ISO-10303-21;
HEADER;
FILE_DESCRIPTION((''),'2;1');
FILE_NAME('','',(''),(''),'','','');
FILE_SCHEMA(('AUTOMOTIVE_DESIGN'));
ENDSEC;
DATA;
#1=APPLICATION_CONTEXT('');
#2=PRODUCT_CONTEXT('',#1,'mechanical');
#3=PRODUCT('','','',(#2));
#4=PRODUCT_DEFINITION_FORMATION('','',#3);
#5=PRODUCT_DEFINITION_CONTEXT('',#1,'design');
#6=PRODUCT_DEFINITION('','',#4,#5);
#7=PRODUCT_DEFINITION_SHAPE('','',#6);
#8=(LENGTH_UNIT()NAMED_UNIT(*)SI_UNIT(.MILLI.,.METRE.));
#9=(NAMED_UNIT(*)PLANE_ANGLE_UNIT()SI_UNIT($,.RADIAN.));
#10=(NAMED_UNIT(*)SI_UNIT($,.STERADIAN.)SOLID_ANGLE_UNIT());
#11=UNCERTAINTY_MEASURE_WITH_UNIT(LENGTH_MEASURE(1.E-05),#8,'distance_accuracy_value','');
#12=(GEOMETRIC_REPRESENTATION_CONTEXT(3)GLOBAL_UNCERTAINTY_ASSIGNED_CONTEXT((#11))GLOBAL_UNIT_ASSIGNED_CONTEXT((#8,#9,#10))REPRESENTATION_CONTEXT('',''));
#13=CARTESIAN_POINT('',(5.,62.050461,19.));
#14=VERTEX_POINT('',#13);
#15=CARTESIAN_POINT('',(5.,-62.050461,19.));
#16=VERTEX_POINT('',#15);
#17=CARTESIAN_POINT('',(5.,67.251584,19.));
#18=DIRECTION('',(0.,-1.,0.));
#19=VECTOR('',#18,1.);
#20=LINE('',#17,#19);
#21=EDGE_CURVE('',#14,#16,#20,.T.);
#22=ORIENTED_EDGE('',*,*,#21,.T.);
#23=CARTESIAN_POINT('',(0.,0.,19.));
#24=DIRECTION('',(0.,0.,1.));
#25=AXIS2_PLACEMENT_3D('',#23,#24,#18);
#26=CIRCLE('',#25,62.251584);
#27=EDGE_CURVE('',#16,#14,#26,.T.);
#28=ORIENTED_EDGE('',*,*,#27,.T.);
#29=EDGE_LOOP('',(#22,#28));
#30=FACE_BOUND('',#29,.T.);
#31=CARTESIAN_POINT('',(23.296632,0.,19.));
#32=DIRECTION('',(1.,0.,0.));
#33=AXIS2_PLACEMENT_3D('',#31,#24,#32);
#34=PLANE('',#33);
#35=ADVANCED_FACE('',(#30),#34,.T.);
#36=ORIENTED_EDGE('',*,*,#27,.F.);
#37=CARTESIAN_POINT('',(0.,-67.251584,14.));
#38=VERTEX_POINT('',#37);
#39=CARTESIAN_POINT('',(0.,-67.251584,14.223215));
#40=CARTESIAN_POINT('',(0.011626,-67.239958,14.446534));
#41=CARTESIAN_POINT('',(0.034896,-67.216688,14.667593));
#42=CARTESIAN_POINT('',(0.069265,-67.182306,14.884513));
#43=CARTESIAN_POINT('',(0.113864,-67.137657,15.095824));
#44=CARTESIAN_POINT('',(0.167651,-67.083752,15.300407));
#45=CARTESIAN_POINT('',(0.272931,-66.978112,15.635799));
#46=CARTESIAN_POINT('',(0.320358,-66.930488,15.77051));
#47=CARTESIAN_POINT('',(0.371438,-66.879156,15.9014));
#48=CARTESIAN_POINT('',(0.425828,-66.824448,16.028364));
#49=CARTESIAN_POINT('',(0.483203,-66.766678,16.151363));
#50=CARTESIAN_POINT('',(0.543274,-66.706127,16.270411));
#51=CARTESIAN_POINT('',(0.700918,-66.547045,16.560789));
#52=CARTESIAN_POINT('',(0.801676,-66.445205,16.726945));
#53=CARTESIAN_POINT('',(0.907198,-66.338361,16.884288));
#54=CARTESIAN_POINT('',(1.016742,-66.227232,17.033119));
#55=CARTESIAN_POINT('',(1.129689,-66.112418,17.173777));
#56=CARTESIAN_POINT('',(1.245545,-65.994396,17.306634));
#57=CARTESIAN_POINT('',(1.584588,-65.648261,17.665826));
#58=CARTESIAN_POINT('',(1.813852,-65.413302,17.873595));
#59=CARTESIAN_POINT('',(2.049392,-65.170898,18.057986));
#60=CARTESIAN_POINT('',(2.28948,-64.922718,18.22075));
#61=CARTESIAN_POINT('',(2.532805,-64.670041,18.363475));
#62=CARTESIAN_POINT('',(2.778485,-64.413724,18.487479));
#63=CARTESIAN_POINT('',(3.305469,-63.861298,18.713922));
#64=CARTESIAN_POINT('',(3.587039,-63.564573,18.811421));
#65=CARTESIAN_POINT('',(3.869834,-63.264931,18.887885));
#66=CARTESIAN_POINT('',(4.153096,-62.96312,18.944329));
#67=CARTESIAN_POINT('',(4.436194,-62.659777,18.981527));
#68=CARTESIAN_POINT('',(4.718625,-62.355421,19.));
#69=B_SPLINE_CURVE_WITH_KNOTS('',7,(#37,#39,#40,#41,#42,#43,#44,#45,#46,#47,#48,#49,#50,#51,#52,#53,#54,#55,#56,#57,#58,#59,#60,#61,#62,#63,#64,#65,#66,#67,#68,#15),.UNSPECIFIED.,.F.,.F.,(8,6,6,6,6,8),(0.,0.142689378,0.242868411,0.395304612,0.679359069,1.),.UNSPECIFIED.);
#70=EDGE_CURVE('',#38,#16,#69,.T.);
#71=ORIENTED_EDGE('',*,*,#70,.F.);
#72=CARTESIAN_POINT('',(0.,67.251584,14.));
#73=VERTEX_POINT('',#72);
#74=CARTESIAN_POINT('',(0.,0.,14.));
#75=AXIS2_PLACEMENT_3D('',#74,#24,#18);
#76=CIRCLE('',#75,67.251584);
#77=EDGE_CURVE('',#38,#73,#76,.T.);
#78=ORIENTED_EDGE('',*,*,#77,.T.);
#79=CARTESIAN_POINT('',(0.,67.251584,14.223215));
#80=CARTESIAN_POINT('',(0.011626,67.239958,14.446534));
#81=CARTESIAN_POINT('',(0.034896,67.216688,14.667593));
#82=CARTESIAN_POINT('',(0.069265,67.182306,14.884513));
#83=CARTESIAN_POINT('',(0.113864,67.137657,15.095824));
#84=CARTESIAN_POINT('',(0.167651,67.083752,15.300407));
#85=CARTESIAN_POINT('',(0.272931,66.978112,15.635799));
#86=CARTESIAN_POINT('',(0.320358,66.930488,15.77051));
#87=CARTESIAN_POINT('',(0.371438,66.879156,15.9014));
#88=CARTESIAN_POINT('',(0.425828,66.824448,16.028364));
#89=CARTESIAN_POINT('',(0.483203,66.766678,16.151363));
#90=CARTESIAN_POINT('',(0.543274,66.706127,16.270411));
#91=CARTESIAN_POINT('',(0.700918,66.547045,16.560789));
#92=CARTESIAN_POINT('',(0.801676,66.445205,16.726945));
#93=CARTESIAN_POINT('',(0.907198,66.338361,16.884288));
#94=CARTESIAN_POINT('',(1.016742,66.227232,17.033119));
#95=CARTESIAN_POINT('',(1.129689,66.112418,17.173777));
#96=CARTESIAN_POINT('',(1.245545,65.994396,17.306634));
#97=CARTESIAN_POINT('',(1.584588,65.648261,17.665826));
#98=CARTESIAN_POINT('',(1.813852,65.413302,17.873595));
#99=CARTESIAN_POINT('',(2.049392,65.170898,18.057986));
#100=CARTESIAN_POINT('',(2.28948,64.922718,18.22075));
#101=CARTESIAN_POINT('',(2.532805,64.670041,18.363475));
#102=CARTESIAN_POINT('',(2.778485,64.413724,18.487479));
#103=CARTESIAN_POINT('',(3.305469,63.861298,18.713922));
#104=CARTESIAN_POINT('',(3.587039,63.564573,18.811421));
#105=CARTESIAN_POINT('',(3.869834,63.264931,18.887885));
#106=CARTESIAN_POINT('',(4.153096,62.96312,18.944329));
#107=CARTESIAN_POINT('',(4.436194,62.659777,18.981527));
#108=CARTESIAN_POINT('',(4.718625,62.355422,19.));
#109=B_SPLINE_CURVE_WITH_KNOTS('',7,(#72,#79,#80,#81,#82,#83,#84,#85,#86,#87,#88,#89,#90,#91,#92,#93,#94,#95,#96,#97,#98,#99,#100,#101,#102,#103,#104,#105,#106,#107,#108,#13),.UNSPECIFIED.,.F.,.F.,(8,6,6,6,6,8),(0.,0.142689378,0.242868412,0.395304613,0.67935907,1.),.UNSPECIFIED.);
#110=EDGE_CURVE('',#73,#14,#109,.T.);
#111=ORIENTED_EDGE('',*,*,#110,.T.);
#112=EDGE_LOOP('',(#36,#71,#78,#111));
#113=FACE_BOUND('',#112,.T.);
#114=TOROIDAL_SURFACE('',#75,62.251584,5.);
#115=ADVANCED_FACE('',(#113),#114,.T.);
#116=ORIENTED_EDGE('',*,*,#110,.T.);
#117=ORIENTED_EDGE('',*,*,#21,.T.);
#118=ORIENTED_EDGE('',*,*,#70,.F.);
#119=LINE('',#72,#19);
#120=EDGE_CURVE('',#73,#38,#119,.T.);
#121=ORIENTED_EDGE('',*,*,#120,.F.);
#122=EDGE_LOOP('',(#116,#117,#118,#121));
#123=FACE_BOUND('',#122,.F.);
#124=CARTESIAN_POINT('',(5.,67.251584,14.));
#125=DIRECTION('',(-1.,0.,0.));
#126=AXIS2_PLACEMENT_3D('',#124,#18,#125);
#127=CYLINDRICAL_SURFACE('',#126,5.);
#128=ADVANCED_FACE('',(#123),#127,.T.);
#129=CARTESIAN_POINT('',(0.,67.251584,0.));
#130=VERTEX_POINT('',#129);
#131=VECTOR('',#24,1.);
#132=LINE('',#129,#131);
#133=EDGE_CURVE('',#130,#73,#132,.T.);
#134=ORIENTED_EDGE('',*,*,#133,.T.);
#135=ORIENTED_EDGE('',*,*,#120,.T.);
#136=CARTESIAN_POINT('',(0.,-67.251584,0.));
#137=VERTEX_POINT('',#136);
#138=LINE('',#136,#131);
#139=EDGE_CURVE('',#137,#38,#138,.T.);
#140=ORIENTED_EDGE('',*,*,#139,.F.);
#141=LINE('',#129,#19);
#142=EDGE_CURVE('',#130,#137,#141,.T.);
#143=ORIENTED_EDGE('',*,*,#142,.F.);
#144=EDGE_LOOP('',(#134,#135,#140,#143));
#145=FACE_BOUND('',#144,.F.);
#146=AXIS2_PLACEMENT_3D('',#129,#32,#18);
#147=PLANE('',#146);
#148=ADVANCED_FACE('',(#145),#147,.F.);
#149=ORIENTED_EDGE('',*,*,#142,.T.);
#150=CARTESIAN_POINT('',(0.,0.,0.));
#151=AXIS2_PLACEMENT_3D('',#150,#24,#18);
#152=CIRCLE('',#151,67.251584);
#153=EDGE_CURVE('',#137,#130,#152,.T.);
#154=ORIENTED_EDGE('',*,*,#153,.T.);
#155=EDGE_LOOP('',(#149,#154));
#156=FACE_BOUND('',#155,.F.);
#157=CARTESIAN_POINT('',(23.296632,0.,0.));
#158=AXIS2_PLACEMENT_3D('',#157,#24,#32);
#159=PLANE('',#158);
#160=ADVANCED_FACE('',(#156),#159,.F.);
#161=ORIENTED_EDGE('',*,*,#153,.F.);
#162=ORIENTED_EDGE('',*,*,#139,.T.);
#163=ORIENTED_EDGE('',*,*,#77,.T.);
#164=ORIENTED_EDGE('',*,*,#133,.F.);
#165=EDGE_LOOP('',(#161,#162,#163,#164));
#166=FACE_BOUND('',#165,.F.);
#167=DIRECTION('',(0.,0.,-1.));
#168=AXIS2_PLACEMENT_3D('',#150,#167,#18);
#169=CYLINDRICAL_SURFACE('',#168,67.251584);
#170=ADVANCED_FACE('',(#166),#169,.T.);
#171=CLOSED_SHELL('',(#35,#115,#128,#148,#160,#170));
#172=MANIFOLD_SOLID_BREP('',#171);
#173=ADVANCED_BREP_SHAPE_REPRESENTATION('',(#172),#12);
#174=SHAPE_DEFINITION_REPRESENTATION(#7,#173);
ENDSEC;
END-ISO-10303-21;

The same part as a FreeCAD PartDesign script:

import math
import FreeCAD as App
import Part
import Sketcher
from FreeCAD import Vector
Q = App.Units.Quantity


def edges_at(feature, points):
    """Names of the edges that pass closest to the given points."""
    edges = feature.Shape.Edges
    near = lambda p: min(range(len(edges)), key=lambda i: edges[i].distToShape(Part.Vertex(*p))[0])
    return sorted({f"Edge{near(p) + 1}" for p in points})

doc = App.newDocument("Part")
body = doc.addObject("PartDesign::Body", "Body")

# Sketch on XY plane
sketch1 = body.newObject("Sketcher::SketchObject", "Sketch")
sketch1.AttachmentSupport = (doc.getObject("XY_Plane"), [""])
sketch1.MapMode = "FlatFace"
sketch1.addGeometry([
    Part.LineSegment(Vector(0, 67.251584, 0), Vector(0, -67.251584, 0)),
    Part.ArcOfCircle(Part.Circle(Vector(0, 0, 0), Vector(0, 0, 1), 67.251584), math.radians(-90), math.radians(90)),
], False)
sketch1.addConstraint([
    Sketcher.Constraint("Coincident", 0, 1, 1, 2),
    Sketcher.Constraint("Coincident", 1, 1, 0, 2),
    Sketcher.Constraint("Vertical", 0),
    Sketcher.Constraint("Coincident", 1, 3, -1, 1),
    Sketcher.Constraint("PointOnObject", 0, 1, -2),
    Sketcher.Constraint("Radius", 1, Q("67.251584 mm")),
])
pad1 = body.newObject("PartDesign::Pad", "Pad")
pad1.Profile = sketch1
pad1.Length = 19
doc.recompute()

fillet = body.newObject("PartDesign::Fillet", "Fillet")
fillet.Base = (pad1, edges_at(pad1, [(0, 0, 19), (67.252, 0, 19)]))
fillet.Radius = 5

doc.recompute()
